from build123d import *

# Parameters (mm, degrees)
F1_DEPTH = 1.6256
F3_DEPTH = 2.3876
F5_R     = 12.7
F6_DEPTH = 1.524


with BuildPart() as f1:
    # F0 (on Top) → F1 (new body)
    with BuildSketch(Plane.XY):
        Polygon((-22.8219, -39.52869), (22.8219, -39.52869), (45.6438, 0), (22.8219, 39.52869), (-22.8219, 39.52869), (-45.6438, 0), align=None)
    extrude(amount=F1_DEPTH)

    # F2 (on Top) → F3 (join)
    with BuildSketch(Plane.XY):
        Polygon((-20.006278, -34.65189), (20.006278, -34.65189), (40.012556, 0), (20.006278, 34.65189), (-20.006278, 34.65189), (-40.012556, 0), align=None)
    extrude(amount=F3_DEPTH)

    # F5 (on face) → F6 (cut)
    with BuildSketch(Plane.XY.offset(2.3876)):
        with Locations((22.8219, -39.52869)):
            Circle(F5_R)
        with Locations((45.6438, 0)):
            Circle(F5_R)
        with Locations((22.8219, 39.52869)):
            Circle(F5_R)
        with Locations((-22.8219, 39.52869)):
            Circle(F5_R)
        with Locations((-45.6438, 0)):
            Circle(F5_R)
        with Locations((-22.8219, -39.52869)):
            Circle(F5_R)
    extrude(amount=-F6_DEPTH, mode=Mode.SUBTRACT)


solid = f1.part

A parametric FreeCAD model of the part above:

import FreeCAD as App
import Part
import Sketcher

V = App.Vector
Q = App.Units.Quantity

doc = App.newDocument("Part")
body = doc.addObject("PartDesign::Body", "Body")

sketch1 = doc.addObject("Sketcher::SketchObject", "Sketch")
body.addObject(sketch1)
sketch1.AttachmentSupport = (doc.XY_Plane, [""])
sketch1.MapMode = "FlatFace"
sketch1.addGeometry([
    Part.LineSegment(V(-23, -40, 0), V(23, -40, 0)),
    Part.LineSegment(V(23, -40, 0), V(46, 0, 0)),
    Part.LineSegment(V(46, 0, 0), V(23, 40, 0)),
    Part.LineSegment(V(23, 40, 0), V(-23, 40, 0)),
    Part.LineSegment(V(-23, 40, 0), V(-46, 0, 0)),
    Part.LineSegment(V(-46, 0, 0), V(-23, -40, 0)),
], False)
sketch1.addConstraint([
    Sketcher.Constraint("Coincident", 0, 2, 1, 1),
    Sketcher.Constraint("Coincident", 1, 2, 2, 1),
    Sketcher.Constraint("Coincident", 2, 2, 3, 1),
    Sketcher.Constraint("Coincident", 3, 2, 4, 1),
    Sketcher.Constraint("Coincident", 4, 2, 5, 1),
    Sketcher.Constraint("Coincident", 5, 2, 0, 1),
    Sketcher.Constraint("Horizontal", 0),
    Sketcher.Constraint("Horizontal", 3),
    Sketcher.Constraint("Symmetric", 0, 2, 3, 2, -1, 1),
    Sketcher.Constraint("Symmetric", 1, 2, 4, 2, -1, 1),
    Sketcher.Constraint("PointOnObject", 1, 2, -1),
    Sketcher.Constraint("Parallel", 2, 5),
    Sketcher.Constraint("Vertical", 0, 2, 2, 2),
    Sketcher.Constraint("Angle", 1, Q("60 deg")),
    Sketcher.Constraint("DistanceX", 0, 1, 0, 2, Q("1.797 in")),
    Sketcher.Constraint("Distance", 1, Q("1.797 in")),
])
pad1 = doc.addObject("PartDesign::Pad", "Pad")
body.addObject(pad1)
pad1.Profile = sketch1
pad1.Length = Q("0.064 in")

sketch2 = doc.addObject("Sketcher::SketchObject", "Sketch001")
body.addObject(sketch2)
sketch2.AttachmentSupport = (doc.XY_Plane, [""])
sketch2.MapMode = "FlatFace"
sketch2.addGeometry([
    Part.LineSegment(V(-20, -35, 0), V(20, -35, 0)),
    Part.LineSegment(V(20, -35, 0), V(40, 0, 0)),
    Part.LineSegment(V(40, 0, 0), V(20, 35, 0)),
    Part.LineSegment(V(20, 35, 0), V(-20, 35, 0)),
    Part.LineSegment(V(-20, 35, 0), V(-40, 0, 0)),
    Part.LineSegment(V(-40, 0, 0), V(-20, -35, 0)),
], False)
sketch2.addConstraint([
    Sketcher.Constraint("Coincident", 0, 2, 1, 1),
    Sketcher.Constraint("Coincident", 1, 2, 2, 1),
    Sketcher.Constraint("Coincident", 2, 2, 3, 1),
    Sketcher.Constraint("Coincident", 3, 2, 4, 1),
    Sketcher.Constraint("Coincident", 4, 2, 5, 1),
    Sketcher.Constraint("Coincident", 5, 2, 0, 1),
    Sketcher.Constraint("Horizontal", 0),
    Sketcher.Constraint("Horizontal", 3),
    Sketcher.Constraint("Symmetric", 0, 2, 3, 2, -1, 1),
    Sketcher.Constraint("Symmetric", 1, 2, 4, 2, -1, 1),
    Sketcher.Constraint("PointOnObject", 1, 2, -1),
    Sketcher.Constraint("Parallel", 2, 5),
    Sketcher.Constraint("Vertical", 0, 2, 2, 2),
    Sketcher.Constraint("Angle", 1, Q("60 deg")),
    Sketcher.Constraint("DistanceX", 0, 1, 0, 2, 40.012556),
    Sketcher.Constraint("DistanceY", 0, 2, -1, 1, 34.65189),
])
pad2 = doc.addObject("PartDesign::Pad", "Pad001")
body.addObject(pad2)
pad2.Profile = sketch2
pad2.Length = Q("0.094 in")

sketch3 = doc.addObject("Sketcher::SketchObject", "Sketch002")
body.addObject(sketch3)
sketch3.AttachmentSupport = (doc.XY_Plane, [""])
sketch3.MapMode = "FlatFace"
sketch3.AttachmentOffset = App.Placement(V(0, 0, 0.094 * 25.4), App.Rotation())
sketch3.addGeometry([
    Part.Circle(V(23, -40, 0), V(0, 0, 1), 13),
    Part.Circle(V(46, 0, 0), V(0, 0, 1), 13),
    Part.Circle(V(23, 40, 0), V(0, 0, 1), 13),
    Part.Circle(V(-23, 40, 0), V(0, 0, 1), 13),
    Part.Circle(V(-46, 0, 0), V(0, 0, 1), 13),
    Part.Circle(V(-23, -40, 0), V(0, 0, 1), 13),
], False)
sketch3.addConstraint([
    Sketcher.Constraint("Equal", 0, 1),
    Sketcher.Constraint("Equal", 1, 2),
    Sketcher.Constraint("Equal", 2, 3),
    Sketcher.Constraint("Equal", 3, 4),
    Sketcher.Constraint("Equal", 4, 5),
    Sketcher.Constraint("Symmetric", 0, 3, 3, 3, -1, 1),
    Sketcher.Constraint("Symmetric", 1, 3, 4, 3, -1, 1),
    Sketcher.Constraint("Symmetric", 2, 3, 5, 3, -1, 1),
    Sketcher.Constraint("Symmetric", 2, 3, 3, 3, -2),
    Sketcher.Constraint("PointOnObject", 1, 3, -1),
    Sketcher.Constraint("Diameter", 0, Q("1 in")),
    Sketcher.Constraint("DistanceX", -1, 1, 1, 3, Q("1.797 in")),
    Sketcher.Constraint("DistanceX", 3, 3, 2, 3, Q("1.797 in")),
    Sketcher.Constraint("DistanceY", 0, 3, -1, 1, 39.52869),
])
pocket1 = doc.addObject("PartDesign::Pocket", "Pocket")
body.addObject(pocket1)
pocket1.Profile = sketch3
pocket1.Length = Q("0.06 in")

doc.recompute()
